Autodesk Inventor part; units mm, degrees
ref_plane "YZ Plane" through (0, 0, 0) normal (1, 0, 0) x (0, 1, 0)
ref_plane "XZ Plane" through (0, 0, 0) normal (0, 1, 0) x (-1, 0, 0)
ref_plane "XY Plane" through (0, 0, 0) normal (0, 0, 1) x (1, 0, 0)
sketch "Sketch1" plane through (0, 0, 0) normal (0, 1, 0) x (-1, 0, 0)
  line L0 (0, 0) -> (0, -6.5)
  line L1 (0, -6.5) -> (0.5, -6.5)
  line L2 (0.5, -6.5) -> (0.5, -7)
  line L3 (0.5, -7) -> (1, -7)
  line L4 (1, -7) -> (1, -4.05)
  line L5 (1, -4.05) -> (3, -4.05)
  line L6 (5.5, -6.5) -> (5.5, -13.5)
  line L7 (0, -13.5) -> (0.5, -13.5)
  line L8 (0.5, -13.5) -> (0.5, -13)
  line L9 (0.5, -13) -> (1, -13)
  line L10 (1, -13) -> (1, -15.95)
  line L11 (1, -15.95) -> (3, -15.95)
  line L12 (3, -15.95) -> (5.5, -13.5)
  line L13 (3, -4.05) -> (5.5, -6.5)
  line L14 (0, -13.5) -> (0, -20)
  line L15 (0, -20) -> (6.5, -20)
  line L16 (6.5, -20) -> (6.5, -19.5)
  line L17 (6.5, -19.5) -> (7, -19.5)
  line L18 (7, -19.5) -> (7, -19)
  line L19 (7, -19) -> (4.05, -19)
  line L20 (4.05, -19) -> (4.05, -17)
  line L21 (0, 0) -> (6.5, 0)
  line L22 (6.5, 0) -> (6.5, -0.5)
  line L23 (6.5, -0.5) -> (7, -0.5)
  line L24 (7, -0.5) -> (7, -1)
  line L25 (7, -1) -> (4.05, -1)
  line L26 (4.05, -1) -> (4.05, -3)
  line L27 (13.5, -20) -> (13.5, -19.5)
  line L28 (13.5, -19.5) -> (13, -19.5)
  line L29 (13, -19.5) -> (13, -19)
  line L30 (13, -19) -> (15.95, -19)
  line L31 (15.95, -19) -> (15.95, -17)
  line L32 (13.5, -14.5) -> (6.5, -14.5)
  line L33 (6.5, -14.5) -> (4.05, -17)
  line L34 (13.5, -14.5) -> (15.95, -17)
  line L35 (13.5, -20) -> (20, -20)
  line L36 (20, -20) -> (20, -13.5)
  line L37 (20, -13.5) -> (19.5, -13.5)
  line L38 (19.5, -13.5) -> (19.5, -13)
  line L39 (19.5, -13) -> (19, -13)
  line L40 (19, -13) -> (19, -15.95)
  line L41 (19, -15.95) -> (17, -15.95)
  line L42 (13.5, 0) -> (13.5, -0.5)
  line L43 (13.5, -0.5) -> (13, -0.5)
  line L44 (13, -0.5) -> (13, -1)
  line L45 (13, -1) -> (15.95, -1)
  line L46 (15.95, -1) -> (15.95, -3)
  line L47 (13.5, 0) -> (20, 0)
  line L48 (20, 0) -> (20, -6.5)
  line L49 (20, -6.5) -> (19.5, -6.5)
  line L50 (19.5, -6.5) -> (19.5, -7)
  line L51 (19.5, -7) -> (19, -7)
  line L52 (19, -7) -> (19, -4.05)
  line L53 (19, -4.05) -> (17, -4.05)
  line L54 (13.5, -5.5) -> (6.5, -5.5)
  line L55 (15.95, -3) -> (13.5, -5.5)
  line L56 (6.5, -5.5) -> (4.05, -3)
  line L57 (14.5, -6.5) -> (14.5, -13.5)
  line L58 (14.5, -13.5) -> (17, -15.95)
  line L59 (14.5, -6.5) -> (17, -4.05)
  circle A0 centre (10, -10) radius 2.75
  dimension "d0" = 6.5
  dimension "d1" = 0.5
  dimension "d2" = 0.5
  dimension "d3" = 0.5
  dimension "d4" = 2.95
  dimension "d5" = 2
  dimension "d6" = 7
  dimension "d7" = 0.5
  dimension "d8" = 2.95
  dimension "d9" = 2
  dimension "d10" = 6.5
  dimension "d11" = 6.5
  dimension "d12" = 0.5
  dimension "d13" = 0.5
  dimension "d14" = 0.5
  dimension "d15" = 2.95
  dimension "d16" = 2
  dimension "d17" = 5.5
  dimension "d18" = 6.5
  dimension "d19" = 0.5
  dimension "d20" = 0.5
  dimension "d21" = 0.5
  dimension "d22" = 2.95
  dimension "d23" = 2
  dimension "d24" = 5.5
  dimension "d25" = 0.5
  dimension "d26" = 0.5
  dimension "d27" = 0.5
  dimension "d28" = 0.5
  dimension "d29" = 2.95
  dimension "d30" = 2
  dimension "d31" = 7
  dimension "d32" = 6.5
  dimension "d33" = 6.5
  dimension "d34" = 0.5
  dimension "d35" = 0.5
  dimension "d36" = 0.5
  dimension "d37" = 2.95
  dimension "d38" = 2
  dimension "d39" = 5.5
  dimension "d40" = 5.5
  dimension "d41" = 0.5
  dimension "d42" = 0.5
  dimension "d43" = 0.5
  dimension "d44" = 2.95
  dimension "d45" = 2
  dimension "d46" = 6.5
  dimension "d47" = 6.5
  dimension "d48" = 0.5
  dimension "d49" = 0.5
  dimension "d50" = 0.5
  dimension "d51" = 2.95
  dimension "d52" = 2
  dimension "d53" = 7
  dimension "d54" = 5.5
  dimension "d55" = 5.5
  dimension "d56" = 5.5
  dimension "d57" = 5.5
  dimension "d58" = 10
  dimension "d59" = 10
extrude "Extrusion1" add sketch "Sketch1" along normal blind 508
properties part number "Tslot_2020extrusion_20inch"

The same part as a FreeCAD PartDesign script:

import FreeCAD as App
import Part
import Sketcher
from FreeCAD import Vector
Q = App.Units.Quantity


def add_polygon(sketch, points):
    """Adds a closed chain of lines whose ends are joined by coincident constraints."""
    first, n = sketch.GeometryCount, len(points)
    for a, b in zip(points, points[1:] + points[:1]):
        sketch.addGeometry(Part.LineSegment(App.Vector(*a, 0), App.Vector(*b, 0)), False)
    for i in range(n):
        sketch.addConstraint(Sketcher.Constraint("Coincident", first + i, 2, first + (i + 1) % n, 1))

doc = App.newDocument("Part")
body = doc.addObject("PartDesign::Body", "Body")

sketch1 = body.newObject("Sketcher::SketchObject", "Sketch")
sketch1.AttachmentSupport = (doc.getObject("XZ_Plane"), [""])
sketch1.MapMode = "FlatFace"
add_polygon(sketch1, [(-6.5, 0), (0, 0), (0, -6.5), (-0.5, -6.5), (-0.5, -7), (-1, -7), (-1, -4), (-3, -4), (-5.5, -6.5), (-5.5, -13.5), (-3, -15.9), (-1, -15.9), (-1, -13), (-0.5, -13), (-0.5, -13.5), (0, -13.5), (0, -20), (-6.5, -20), (-6.5, -19.5), (-7, -19.5), (-7, -19), (-4, -19), (-4, -17), (-6.5, -14.5), (-13.5, -14.5), (-15.9, -17), (-15.9, -19), (-13, -19), (-13, -19.5), (-13.5, -19.5), (-13.5, -20), (-20, -20), (-20, -13.5), (-19.5, -13.5), (-19.5, -13), (-19, -13), (-19, -15.9), (-17, -15.9), (-14.5, -13.5), (-14.5, -6.5), (-17, -4), (-19, -4), (-19, -7), (-19.5, -7), (-19.5, -6.5), (-20, -6.5), (-20, 0), (-13.5, 0), (-13.5, -0.5), (-13, -0.5), (-13, -1), (-15.9, -1), (-15.9, -3), (-13.5, -5.5), (-6.5, -5.5), (-4, -3), (-4, -1), (-7, -1), (-7, -0.5), (-6.5, -0.5)])
sketch1.addGeometry(Part.Circle(Vector(-10, -10, 0), Vector(0, 0, 1), 2.8), False)
sketch1.addConstraint([
    Sketcher.Constraint("Horizontal", 0),
    Sketcher.Constraint("Vertical", 1),
    Sketcher.Constraint("Horizontal", 2),
    Sketcher.Constraint("Vertical", 3),
    Sketcher.Constraint("Horizontal", 4),
    Sketcher.Constraint("Vertical", 5),
    Sketcher.Constraint("Horizontal", 6),
    Sketcher.Constraint("Vertical", 8),
    Sketcher.Constraint("Horizontal", 10),
    Sketcher.Constraint("Vertical", 11),
    Sketcher.Constraint("Horizontal", 12),
    Sketcher.Constraint("Vertical", 13),
    Sketcher.Constraint("Horizontal", 14),
    Sketcher.Constraint("Vertical", 15),
    Sketcher.Constraint("Horizontal", 16),
    Sketcher.Constraint("Vertical", 17),
    Sketcher.Constraint("Horizontal", 18),
    Sketcher.Constraint("Vertical", 19),
    Sketcher.Constraint("Horizontal", 20),
    Sketcher.Constraint("Vertical", 21),
    Sketcher.Constraint("Horizontal", 23),
    Sketcher.Constraint("Vertical", 25),
    Sketcher.Constraint("Horizontal", 26),
    Sketcher.Constraint("Vertical", 27),
    Sketcher.Constraint("Horizontal", 28),
    Sketcher.Constraint("Vertical", 29),
    Sketcher.Constraint("Horizontal", 30),
    Sketcher.Constraint("Vertical", 31),
    Sketcher.Constraint("Horizontal", 32),
    Sketcher.Constraint("Vertical", 33),
    Sketcher.Constraint("Horizontal", 34),
    Sketcher.Constraint("Vertical", 35),
    Sketcher.Constraint("Horizontal", 36),
    Sketcher.Constraint("Vertical", 38),
    Sketcher.Constraint("Horizontal", 40),
    Sketcher.Constraint("Vertical", 41),
    Sketcher.Constraint("Horizontal", 42),
    Sketcher.Constraint("Vertical", 43),
    Sketcher.Constraint("Horizontal", 44),
    Sketcher.Constraint("Vertical", 45),
    Sketcher.Constraint("Horizontal", 46),
    Sketcher.Constraint("Vertical", 47),
    Sketcher.Constraint("Horizontal", 48),
    Sketcher.Constraint("Vertical", 49),
    Sketcher.Constraint("Horizontal", 50),
    Sketcher.Constraint("Vertical", 51),
    Sketcher.Constraint("Horizontal", 53),
    Sketcher.Constraint("Vertical", 55),
    Sketcher.Constraint("Horizontal", 56),
    Sketcher.Constraint("Vertical", 57),
    Sketcher.Constraint("Horizontal", 58),
    Sketcher.Constraint("Vertical", 59),
    Sketcher.Constraint("Coincident", 0, 2, -1, 1),
    Sketcher.Constraint("PointOnObject", 14, 2, -2),
    Sketcher.Constraint("PointOnObject", 45, 2, -1),
    Sketcher.Constraint("Perpendicular", 7, 22),
    Sketcher.Constraint("Perpendicular", 9, 24),
    Sketcher.Constraint("Perpendicular", 22, 37),
    Sketcher.Constraint("Perpendicular", 24, 39),
    Sketcher.Constraint("Perpendicular", 37, 52),
    Sketcher.Constraint("Perpendicular", 39, 54),
    Sketcher.Constraint("Horizontal", 2, 2, 7, 2),
    Sketcher.Constraint("Horizontal", 8, 2, 13, 2),
    Sketcher.Constraint("Horizontal", 21, 2, 24, 2),
    Sketcher.Constraint("Horizontal", 20, 2, 25, 2),
    Sketcher.Constraint("Horizontal", 18, 2, 27, 2),
    Sketcher.Constraint("Horizontal", 16, 2, 29, 2),
    Sketcher.Constraint("Horizontal", 14, 2, 31, 2),
    Sketcher.Constraint("Horizontal", 12, 2, 33, 2),
    Sketcher.Constraint("Horizontal", 10, 2, 35, 2),
    Sketcher.Constraint("Horizontal", 32, 2, 37, 2),
    Sketcher.Constraint("Horizontal", 7, 2, 38, 2),
    Sketcher.Constraint("Horizontal", 6, 2, 39, 2),
    Sketcher.Constraint("Horizontal", 4, 2, 41, 2),
    Sketcher.Constraint("Horizontal", 38, 2, 43, 2),
    Sketcher.Constraint("Horizontal", 51, 2, 54, 2),
    Sketcher.Constraint("Horizontal", 50, 2, 55, 2),
    Sketcher.Constraint("Horizontal", 48, 2, 57, 2),
    Sketcher.Constraint("Vertical", 6, 2, 9, 2),
    Sketcher.Constraint("Vertical", 5, 2, 10, 2),
    Sketcher.Constraint("Vertical", 3, 2, 12, 2),
    Sketcher.Constraint("Vertical", 17, 2, 22, 2),
    Sketcher.Constraint("Vertical", 23, 2, 28, 2),
    Sketcher.Constraint("Vertical", 36, 2, 39, 2),
    Sketcher.Constraint("Vertical", 35, 2, 40, 2),
    Sketcher.Constraint("Vertical", 33, 2, 42, 2),
    Sketcher.Constraint("Vertical", 31, 2, 44, 2),
    Sketcher.Constraint("Vertical", 29, 2, 46, 2),
    Sketcher.Constraint("Vertical", 27, 2, 48, 2),
    Sketcher.Constraint("Vertical", 25, 2, 50, 2),
    Sketcher.Constraint("Vertical", 47, 2, 52, 2),
    Sketcher.Constraint("Vertical", 22, 2, 53, 2),
    Sketcher.Constraint("Vertical", 19, 2, 56, 2),
    Sketcher.Constraint("Vertical", 53, 2, 58, 2),
    Sketcher.Constraint("Equal", 2, 4),
    Sketcher.Constraint("Equal", 14, 18),
    Sketcher.Constraint("Equal", 20, 26),
    Sketcher.Constraint("Equal", 16, 30),
    Sketcher.Constraint("Equal", 28, 32),
    Sketcher.Constraint("Equal", 32, 34),
    Sketcher.Constraint("Equal", 10, 36),
    Sketcher.Constraint("Equal", 46, 1),
    Sketcher.Constraint("Equal", 58, 3),
    Sketcher.Constraint("Equal", 56, 5),
    Sketcher.Constraint("Equal", 53, 8),
    Sketcher.Constraint("Equal", 5, 11),
    Sketcher.Constraint("Equal", 1, 15),
    Sketcher.Constraint("Equal", 13, 17),
    Sketcher.Constraint("Equal", 17, 19),
    Sketcher.Constraint("Equal", 40, 21),
    Sketcher.Constraint("Equal", 43, 47),
    Sketcher.Constraint("Equal", 47, 49),
    Sketcher.Constraint("Equal", 25, 51),
    Sketcher.Constraint("Diameter", 60, Q("5.5 mm")),
    Sketcher.Constraint("DistanceX", 6, 2, 6, 1, Q("2 mm")),
    Sketcher.Constraint("DistanceX", 23, 2, 23, 1, Q("7 mm")),
    Sketcher.Constraint("DistanceX", 0, 1, 0, 2, Q("6.5 mm")),
    Sketcher.Constraint("DistanceX", 2, 2, 2, 1, Q("0.5 mm")),
    Sketcher.Constraint("DistanceX", 60, 3, -1, 1, Q("10 mm")),
    Sketcher.Constraint("DistanceY", 60, 3, -1, 1, Q("10 mm")),
    Sketcher.Constraint("DistanceX", 20, 1, 20, 2, Q("2.95 mm")),
    Sketcher.Constraint("DistanceX", 7, 2, -1, 1, Q("5.5 mm")),
])
pad1 = body.newObject("PartDesign::Pad", "Pad")
pad1.Profile = sketch1
pad1.Length = 508
pad1.Reversed = True

doc.recompute()
